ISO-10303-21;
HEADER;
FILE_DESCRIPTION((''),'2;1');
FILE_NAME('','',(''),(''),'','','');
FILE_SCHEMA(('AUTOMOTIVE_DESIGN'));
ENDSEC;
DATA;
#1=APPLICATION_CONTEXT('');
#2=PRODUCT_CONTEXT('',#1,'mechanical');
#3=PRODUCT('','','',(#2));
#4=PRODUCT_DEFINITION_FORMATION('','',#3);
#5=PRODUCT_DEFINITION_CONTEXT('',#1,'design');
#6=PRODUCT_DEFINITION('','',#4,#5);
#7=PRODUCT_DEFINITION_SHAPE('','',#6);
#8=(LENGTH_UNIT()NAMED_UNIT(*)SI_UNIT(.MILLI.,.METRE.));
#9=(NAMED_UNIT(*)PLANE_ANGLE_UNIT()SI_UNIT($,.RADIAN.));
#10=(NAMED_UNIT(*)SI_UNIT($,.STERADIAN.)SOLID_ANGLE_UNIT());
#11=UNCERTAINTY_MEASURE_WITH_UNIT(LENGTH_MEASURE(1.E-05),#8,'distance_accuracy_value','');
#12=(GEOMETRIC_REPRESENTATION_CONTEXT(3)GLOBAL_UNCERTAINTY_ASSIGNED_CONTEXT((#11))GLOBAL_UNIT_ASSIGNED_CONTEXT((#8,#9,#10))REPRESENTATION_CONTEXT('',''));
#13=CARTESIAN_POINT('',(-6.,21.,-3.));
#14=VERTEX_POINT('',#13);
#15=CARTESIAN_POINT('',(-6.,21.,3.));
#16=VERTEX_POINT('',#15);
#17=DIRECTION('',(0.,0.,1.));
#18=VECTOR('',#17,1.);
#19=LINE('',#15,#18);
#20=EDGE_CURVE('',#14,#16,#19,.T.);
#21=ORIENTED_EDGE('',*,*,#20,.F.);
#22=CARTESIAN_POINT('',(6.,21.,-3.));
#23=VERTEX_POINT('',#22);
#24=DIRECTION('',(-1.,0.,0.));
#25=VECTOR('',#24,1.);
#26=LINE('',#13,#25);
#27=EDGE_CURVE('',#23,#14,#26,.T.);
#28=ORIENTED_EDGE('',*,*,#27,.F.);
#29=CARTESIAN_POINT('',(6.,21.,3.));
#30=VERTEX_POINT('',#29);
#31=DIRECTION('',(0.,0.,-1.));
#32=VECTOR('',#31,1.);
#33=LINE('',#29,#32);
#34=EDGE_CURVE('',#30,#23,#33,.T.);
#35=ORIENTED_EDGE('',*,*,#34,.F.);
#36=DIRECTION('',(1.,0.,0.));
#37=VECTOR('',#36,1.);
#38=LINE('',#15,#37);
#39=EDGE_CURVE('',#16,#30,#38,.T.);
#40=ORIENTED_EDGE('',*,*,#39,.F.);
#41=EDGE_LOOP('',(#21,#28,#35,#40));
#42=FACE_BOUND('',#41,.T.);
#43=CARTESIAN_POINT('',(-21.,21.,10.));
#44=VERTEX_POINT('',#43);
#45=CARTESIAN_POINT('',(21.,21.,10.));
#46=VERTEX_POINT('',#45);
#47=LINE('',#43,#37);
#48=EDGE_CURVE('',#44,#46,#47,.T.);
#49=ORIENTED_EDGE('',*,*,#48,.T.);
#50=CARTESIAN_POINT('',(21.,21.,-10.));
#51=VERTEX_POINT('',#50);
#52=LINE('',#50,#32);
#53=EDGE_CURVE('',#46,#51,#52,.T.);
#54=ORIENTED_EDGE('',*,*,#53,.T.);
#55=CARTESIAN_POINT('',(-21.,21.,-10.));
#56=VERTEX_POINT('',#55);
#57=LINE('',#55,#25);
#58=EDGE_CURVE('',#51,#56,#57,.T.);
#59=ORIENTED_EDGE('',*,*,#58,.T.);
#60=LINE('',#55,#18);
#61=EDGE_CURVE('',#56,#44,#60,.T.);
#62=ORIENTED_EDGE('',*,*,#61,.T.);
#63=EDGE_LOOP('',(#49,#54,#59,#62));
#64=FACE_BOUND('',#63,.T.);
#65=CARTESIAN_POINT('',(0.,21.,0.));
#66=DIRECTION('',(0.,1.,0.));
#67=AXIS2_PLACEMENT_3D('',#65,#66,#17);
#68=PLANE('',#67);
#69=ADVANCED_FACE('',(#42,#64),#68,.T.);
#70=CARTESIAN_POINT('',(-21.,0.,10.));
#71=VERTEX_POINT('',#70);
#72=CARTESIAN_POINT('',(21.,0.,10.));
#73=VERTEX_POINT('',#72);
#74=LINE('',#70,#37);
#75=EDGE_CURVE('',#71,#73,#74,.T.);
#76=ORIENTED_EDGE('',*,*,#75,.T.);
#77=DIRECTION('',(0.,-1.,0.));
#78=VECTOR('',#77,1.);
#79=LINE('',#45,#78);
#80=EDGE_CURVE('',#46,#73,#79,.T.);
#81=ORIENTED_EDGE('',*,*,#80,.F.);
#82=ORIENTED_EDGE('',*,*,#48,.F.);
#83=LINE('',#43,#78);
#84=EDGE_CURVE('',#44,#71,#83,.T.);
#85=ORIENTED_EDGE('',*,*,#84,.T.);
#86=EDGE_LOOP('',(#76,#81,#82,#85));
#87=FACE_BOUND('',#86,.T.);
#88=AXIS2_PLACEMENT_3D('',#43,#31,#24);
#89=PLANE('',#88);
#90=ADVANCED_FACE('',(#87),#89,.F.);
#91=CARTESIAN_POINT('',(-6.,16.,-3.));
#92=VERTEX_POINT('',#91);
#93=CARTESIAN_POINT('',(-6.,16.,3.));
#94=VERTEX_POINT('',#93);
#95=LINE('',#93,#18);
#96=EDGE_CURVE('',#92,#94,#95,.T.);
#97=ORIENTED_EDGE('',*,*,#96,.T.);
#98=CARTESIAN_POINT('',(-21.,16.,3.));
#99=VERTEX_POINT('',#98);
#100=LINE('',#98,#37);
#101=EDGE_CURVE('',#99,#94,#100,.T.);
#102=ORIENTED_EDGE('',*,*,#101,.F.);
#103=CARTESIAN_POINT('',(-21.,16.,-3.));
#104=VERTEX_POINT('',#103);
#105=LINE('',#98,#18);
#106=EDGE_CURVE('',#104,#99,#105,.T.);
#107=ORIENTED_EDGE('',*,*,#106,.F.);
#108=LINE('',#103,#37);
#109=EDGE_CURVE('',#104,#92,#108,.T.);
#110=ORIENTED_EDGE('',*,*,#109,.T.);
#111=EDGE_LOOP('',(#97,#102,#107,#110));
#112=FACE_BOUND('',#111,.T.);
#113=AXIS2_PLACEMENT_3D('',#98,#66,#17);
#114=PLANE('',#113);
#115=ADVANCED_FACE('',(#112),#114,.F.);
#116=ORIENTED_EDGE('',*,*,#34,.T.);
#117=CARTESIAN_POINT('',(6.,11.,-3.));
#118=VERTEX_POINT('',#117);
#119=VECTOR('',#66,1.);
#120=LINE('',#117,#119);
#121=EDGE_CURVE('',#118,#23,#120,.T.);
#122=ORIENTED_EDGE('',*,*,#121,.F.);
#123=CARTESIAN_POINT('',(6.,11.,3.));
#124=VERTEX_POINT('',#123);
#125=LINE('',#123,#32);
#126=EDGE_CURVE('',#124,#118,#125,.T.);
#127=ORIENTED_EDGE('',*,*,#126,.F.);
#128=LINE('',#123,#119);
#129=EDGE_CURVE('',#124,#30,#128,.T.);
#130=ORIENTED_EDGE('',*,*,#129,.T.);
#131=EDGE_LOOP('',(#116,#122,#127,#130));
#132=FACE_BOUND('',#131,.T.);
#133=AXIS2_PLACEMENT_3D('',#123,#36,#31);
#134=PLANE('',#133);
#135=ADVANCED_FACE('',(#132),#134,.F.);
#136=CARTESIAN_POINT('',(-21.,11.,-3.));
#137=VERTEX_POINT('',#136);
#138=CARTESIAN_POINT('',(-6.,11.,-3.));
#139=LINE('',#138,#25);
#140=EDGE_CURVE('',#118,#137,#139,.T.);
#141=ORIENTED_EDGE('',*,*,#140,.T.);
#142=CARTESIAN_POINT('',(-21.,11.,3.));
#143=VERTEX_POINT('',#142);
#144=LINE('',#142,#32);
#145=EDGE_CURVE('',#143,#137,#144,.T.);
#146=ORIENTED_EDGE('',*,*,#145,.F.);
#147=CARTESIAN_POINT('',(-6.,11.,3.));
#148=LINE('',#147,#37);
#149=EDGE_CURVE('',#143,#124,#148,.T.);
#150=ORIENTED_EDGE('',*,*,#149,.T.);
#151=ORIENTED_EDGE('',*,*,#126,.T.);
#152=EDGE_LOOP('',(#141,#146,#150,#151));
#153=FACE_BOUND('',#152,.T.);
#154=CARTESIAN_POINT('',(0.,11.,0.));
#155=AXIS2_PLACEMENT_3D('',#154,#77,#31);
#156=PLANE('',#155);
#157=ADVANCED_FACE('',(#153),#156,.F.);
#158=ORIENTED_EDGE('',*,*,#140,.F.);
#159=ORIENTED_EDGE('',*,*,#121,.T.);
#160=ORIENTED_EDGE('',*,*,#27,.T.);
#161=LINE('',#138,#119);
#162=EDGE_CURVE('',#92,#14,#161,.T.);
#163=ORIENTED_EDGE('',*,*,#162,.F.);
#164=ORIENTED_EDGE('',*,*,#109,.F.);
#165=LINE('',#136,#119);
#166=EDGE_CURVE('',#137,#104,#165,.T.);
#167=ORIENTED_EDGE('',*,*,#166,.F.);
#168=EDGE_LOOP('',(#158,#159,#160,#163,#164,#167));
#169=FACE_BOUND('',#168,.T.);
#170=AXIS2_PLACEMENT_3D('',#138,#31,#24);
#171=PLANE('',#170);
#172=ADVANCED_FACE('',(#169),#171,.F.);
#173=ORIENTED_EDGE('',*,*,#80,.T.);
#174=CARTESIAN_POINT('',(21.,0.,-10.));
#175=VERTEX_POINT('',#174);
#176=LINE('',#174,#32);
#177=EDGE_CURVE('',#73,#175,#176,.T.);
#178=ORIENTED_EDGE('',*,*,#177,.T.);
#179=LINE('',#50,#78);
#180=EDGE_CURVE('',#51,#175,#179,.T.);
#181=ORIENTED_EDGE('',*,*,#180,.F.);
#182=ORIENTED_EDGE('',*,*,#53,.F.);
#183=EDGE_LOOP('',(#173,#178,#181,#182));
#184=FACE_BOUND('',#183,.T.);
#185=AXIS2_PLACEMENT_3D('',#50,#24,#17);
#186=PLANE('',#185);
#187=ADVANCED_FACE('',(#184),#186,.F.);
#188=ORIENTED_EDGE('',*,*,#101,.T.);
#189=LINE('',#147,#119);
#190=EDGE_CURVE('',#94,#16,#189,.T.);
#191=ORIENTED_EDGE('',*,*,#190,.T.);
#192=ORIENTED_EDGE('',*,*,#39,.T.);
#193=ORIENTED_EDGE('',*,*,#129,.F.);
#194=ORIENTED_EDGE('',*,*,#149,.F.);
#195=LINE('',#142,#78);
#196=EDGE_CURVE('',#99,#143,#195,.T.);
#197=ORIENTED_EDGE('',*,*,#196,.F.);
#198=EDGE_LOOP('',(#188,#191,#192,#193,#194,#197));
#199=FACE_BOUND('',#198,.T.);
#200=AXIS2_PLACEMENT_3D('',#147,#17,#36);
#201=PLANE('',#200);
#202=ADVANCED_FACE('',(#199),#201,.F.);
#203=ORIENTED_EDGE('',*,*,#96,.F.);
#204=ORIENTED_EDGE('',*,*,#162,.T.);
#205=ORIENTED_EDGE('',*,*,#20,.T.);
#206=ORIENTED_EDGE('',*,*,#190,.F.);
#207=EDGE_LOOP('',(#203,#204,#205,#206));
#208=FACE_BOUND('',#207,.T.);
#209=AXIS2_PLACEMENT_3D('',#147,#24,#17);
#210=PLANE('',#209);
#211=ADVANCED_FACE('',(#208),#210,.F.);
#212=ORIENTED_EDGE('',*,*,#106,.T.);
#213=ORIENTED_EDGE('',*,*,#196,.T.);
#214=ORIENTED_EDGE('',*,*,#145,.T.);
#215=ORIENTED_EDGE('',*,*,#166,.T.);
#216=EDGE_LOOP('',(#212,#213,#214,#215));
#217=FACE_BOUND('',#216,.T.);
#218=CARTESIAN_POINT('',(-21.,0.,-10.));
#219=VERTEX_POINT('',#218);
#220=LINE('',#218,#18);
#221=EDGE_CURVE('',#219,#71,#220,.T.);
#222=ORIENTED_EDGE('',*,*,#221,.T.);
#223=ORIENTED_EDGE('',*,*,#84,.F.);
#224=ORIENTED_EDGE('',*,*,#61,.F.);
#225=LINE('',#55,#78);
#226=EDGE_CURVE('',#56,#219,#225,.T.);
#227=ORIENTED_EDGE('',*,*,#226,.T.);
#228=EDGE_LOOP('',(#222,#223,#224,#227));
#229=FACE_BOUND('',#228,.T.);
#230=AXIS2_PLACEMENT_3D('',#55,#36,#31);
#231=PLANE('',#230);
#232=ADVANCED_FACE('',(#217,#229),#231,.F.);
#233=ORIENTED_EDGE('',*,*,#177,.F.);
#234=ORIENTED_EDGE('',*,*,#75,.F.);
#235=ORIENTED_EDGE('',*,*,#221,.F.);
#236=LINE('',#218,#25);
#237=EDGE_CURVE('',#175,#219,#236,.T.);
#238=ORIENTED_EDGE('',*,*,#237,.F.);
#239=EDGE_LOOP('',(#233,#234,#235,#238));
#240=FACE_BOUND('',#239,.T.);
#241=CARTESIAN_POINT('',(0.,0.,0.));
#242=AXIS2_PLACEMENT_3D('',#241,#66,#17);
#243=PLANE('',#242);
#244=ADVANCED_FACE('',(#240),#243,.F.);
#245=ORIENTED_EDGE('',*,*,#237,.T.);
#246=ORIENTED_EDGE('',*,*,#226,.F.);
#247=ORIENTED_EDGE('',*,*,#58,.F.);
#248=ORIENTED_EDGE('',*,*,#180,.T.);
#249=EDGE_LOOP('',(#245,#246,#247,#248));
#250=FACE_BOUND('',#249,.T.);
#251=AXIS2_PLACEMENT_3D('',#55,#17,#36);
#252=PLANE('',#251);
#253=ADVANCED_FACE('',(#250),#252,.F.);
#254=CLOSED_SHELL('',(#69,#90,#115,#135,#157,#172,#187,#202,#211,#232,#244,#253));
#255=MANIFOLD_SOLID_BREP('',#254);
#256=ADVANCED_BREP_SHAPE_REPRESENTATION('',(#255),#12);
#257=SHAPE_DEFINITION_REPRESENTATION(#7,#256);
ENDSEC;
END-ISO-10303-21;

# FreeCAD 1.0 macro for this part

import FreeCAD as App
import Part
import Sketcher
from FreeCAD import Vector

doc = App.newDocument("Part")
params = doc.addObject("Spreadsheet::Sheet", "Params")
for row, (alias, value) in enumerate([
    ("sketch1_width", "42 mm"),
    ("sketch1_height", "20 mm"),
    ("pad1_length", "21 mm"),
    ("sketch2_width", "12 mm"),
    ("sketch2_height", "6 mm"),
    ("pocket1_length", "10 mm"),
    ("sketch3_width", "5 mm"),
    ("sketch3_height", "6 mm"),
], start=1):
    params.set(f"A{row}", alias)
    params.set(f"B{row}", "=" + value)
    params.setAlias(f"B{row}", alias)

body = doc.addObject("PartDesign::Body", "Body")

# Sketch on XZ plane
sketch1 = doc.addObject("Sketcher::SketchObject", "Sketch")
body.addObject(sketch1)
sketch1.AttachmentSupport = (doc.XZ_Plane, [""])
sketch1.MapMode = "FlatFace"
sketch1.addGeometry(Part.LineSegment(Vector(-21, -10, 0), Vector(-21, 10, 0)), False)
sketch1.addGeometry(Part.LineSegment(Vector(-21, 10, 0), Vector(21, 10, 0)), False)
sketch1.addGeometry(Part.LineSegment(Vector(21, 10, 0), Vector(21, -10, 0)), False)
sketch1.addGeometry(Part.LineSegment(Vector(21, -10, 0), Vector(-21, -10, 0)), False)
sketch1.addConstraint(Sketcher.Constraint("Coincident", 0, 2, 1, 1))
sketch1.addConstraint(Sketcher.Constraint("Coincident", 1, 2, 2, 1))
sketch1.addConstraint(Sketcher.Constraint("Coincident", 2, 2, 3, 1))
sketch1.addConstraint(Sketcher.Constraint("Coincident", 3, 2, 0, 1))
sketch1.addConstraint(Sketcher.Constraint("Vertical", 0))
sketch1.addConstraint(Sketcher.Constraint("Horizontal", 1))
sketch1.addConstraint(Sketcher.Constraint("Vertical", 2))
sketch1.addConstraint(Sketcher.Constraint("Horizontal", 3))
sketch1.addConstraint(Sketcher.Constraint("Symmetric", 0, 2, 2, 2, -1, 1))
sketch1.addConstraint(Sketcher.Constraint("DistanceX", 1, 1, 1, 2, 42.0))
sketch1.addConstraint(Sketcher.Constraint("DistanceY", 0, 1, 0, 2, 20.0))
sketch1.setExpression("Constraints[9]", "Params.sketch1_width")
sketch1.setExpression("Constraints[10]", "Params.sketch1_height")
pad1 = doc.addObject("PartDesign::Pad", "Pad")
body.addObject(pad1)
pad1.Profile = sketch1
pad1.setExpression("Length", "Params.pad1_length")
pad1.Reversed = True

# Sketch on XZ plane
sketch2 = doc.addObject("Sketcher::SketchObject", "Sketch001")
body.addObject(sketch2)
sketch2.AttachmentSupport = (doc.XZ_Plane, [""])
sketch2.MapMode = "FlatFace"
sketch2.AttachmentOffset = App.Placement(Vector(0, 0, -21), App.Rotation())
sketch2.addGeometry(Part.LineSegment(Vector(-6, -3, 0), Vector(-6, 3, 0)), False)
sketch2.addGeometry(Part.LineSegment(Vector(-6, 3, 0), Vector(6, 3, 0)), False)
sketch2.addGeometry(Part.LineSegment(Vector(6, 3, 0), Vector(6, -3, 0)), False)
sketch2.addGeometry(Part.LineSegment(Vector(6, -3, 0), Vector(-6, -3, 0)), False)
sketch2.addConstraint(Sketcher.Constraint("Coincident", 0, 2, 1, 1))
sketch2.addConstraint(Sketcher.Constraint("Coincident", 1, 2, 2, 1))
sketch2.addConstraint(Sketcher.Constraint("Coincident", 2, 2, 3, 1))
sketch2.addConstraint(Sketcher.Constraint("Coincident", 3, 2, 0, 1))
sketch2.addConstraint(Sketcher.Constraint("Vertical", 0))
sketch2.addConstraint(Sketcher.Constraint("Horizontal", 1))
sketch2.addConstraint(Sketcher.Constraint("Vertical", 2))
sketch2.addConstraint(Sketcher.Constraint("Horizontal", 3))
sketch2.addConstraint(Sketcher.Constraint("Symmetric", 0, 2, 2, 2, -1, 1))
sketch2.addConstraint(Sketcher.Constraint("DistanceX", 1, 1, 1, 2, 12.0))
sketch2.addConstraint(Sketcher.Constraint("DistanceY", 0, 1, 0, 2, 6.0))
sketch2.setExpression("Constraints[9]", "Params.sketch2_width")
sketch2.setExpression("Constraints[10]", "Params.sketch2_height")
pocket1 = doc.addObject("PartDesign::Pocket", "Pocket")
body.addObject(pocket1)
pocket1.Profile = sketch2
pocket1.setExpression("Length", "Params.pocket1_length")
pocket1.Reversed = True

# Sketch on YZ plane
sketch3 = doc.addObject("Sketcher::SketchObject", "Sketch002")
body.addObject(sketch3)
sketch3.AttachmentSupport = (doc.YZ_Plane, [""])
sketch3.MapMode = "FlatFace"
sketch3.AttachmentOffset = App.Placement(Vector(0, 0, -6), App.Rotation())
sketch3.addGeometry(Part.LineSegment(Vector(16, 3, 0), Vector(11, 3, 0)), False)
sketch3.addGeometry(Part.LineSegment(Vector(11, 3, 0), Vector(11, -3, 0)), False)
sketch3.addGeometry(Part.LineSegment(Vector(11, -3, 0), Vector(16, -3, 0)), False)
sketch3.addGeometry(Part.LineSegment(Vector(16, -3, 0), Vector(16, 3, 0)), False)
sketch3.addConstraint(Sketcher.Constraint("Coincident", 0, 2, 1, 1))
sketch3.addConstraint(Sketcher.Constraint("Coincident", 1, 2, 2, 1))
sketch3.addConstraint(Sketcher.Constraint("Coincident", 2, 2, 3, 1))
sketch3.addConstraint(Sketcher.Constraint("Coincident", 3, 2, 0, 1))
sketch3.addConstraint(Sketcher.Constraint("Horizontal", 0))
sketch3.addConstraint(Sketcher.Constraint("Vertical", 1))
sketch3.addConstraint(Sketcher.Constraint("Horizontal", 2))
sketch3.addConstraint(Sketcher.Constraint("Vertical", 3))
sketch3.addConstraint(Sketcher.Constraint("DistanceX", 0, 2, 0, 1, 5.0))
sketch3.addConstraint(Sketcher.Constraint("DistanceY", 1, 2, 1, 1, 6.0))
sketch3.addConstraint(Sketcher.Constraint("DistanceX", -1, 1, 0, 2, 11.0))
sketch3.addConstraint(Sketcher.Constraint("DistanceY", -1, 1, 0, 2, 3.0))
sketch3.setExpression("Constraints[8]", "Params.sketch3_width")
sketch3.setExpression("Constraints[9]", "Params.sketch3_height")
pocket2 = doc.addObject("PartDesign::Pocket", "Pocket001")
body.addObject(pocket2)
pocket2.Profile = sketch3
pocket2.Type = "ThroughAll"

doc.recompute()
